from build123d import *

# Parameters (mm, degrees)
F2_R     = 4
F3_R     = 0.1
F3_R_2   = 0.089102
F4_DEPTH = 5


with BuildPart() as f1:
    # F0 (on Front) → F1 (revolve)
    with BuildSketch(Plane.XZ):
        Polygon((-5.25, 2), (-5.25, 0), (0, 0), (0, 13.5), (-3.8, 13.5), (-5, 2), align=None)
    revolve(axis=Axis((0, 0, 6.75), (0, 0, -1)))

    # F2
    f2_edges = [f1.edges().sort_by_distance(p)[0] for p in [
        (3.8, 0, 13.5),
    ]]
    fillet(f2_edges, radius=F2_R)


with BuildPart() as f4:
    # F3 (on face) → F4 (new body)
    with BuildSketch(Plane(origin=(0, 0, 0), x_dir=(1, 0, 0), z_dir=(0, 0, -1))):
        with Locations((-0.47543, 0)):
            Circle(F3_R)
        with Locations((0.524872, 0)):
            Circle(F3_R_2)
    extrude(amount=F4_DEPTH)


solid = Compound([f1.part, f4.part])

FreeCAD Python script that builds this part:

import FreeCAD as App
import Part
import Sketcher

V = App.Vector


def edges_at(feature, points):
    """Names of the edges that pass closest to the given points."""
    edges = feature.Shape.Edges
    near = lambda p: min(range(len(edges)), key=lambda i: edges[i].distToShape(Part.Vertex(*p))[0])
    return sorted({f"Edge{near(p) + 1}" for p in points})


def add_polygon(sketch, points):
    """Adds a closed chain of lines whose ends are joined by coincident constraints."""
    first, n = sketch.GeometryCount, len(points)
    for a, b in zip(points, points[1:] + points[:1]):
        sketch.addGeometry(Part.LineSegment(App.Vector(*a, 0), App.Vector(*b, 0)), False)
    for i in range(n):
        sketch.addConstraint(Sketcher.Constraint("Coincident", first + i, 2, first + (i + 1) % n, 1))

doc = App.newDocument("Part")
body = doc.addObject("PartDesign::Body", "Body")

sketch1 = body.newObject("Sketcher::SketchObject", "Sketch")
sketch1.AttachmentSupport = (doc.getObject("XZ_Plane"), [""])
sketch1.MapMode = "FlatFace"
add_polygon(sketch1, [(-5.25, 2), (-5.25, 0), (0, 0), (0, 13.5), (-3.8, 13.5), (-5, 2)])
sketch1.addConstraint([
    Sketcher.Constraint("Vertical", 0),
    Sketcher.Constraint("Horizontal", 1),
    Sketcher.Constraint("Vertical", 2),
    Sketcher.Constraint("Horizontal", 3),
    Sketcher.Constraint("Horizontal", 5),
    Sketcher.Constraint("Coincident", 1, 2, -1, 1),
    Sketcher.Constraint("DistanceY", 0, 2, 0, 1, 2.0),
    Sketcher.Constraint("DistanceX", 3, 2, 3, 1, 3.8),
    Sketcher.Constraint("DistanceY", 2, 1, 2, 2, 13.5),
    Sketcher.Constraint("DistanceX", 4, 2, -1, 1, 5.0),
    Sketcher.Constraint("DistanceX", 1, 1, 1, 2, 5.25),
])
revolution = body.newObject("PartDesign::Revolution", "Revolution")
revolution.Profile = sketch1
revolution.ReferenceAxis = (sketch1, ["V_Axis"])
revolution.Angle = 360
doc.recompute()

fillet = body.newObject("PartDesign::Fillet", "Fillet")
fillet.Base = (revolution, edges_at(revolution, [(3.8, 0, 13.5)]))
fillet.Radius = 4
body2 = doc.addObject("PartDesign::Body", "Body001")
body2.AllowCompound = True

sketch2 = body2.newObject("Sketcher::SketchObject", "Sketch001")
sketch2.AttachmentSupport = (doc.getObject("XY_Plane001"), [""])
sketch2.MapMode = "FlatFace"
sketch2.addGeometry([
    Part.Circle(V(-0.47543, 0, 0), V(0, 0, 1), 0.1),
    Part.Circle(V(0.524872, 0, 0), V(0, 0, 1), 0.089102),
], False)
sketch2.addConstraint([
    Sketcher.Constraint("PointOnObject", 0, 3, -1),
    Sketcher.Constraint("PointOnObject", 1, 3, -1),
    Sketcher.Constraint("Diameter", 0, 0.2),
    Sketcher.Constraint("Diameter", 1, 0.178204),
    Sketcher.Constraint("DistanceX", 0, 3, -1, 1, 0.47543),
    Sketcher.Constraint("DistanceX", -1, 1, 1, 3, 0.524872),
])
pad1 = body2.newObject("PartDesign::Pad", "Pad")
pad1.Profile = sketch2
pad1.Length = 5
pad1.Reversed = True

doc.recompute()
